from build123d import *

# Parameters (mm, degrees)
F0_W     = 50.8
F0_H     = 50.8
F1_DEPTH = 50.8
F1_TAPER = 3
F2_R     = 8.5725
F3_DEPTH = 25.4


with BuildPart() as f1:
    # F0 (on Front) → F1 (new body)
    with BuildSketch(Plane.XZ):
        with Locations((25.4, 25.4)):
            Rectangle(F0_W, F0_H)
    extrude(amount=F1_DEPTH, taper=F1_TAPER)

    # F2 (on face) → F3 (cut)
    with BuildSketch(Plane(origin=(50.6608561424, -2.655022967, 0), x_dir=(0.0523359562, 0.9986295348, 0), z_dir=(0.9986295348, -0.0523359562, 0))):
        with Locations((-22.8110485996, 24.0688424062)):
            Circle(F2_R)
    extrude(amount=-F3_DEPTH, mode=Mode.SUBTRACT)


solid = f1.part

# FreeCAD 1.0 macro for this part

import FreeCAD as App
import Part
import Sketcher

V = App.Vector
Q = App.Units.Quantity

doc = App.newDocument("Part")
body = doc.addObject("PartDesign::Body", "Body")

# Sketch on XZ plane
sketch1 = body.newObject("Sketcher::SketchObject", "Sketch")
sketch1.AttachmentSupport = (doc.getObject("XZ_Plane"), [""])
sketch1.MapMode = "FlatFace"
sketch1.addGeometry([
    Part.LineSegment(V(0, 51, 0), V(0, 0, 0)),
    Part.LineSegment(V(0, 0, 0), V(51, 0, 0)),
    Part.LineSegment(V(51, 0, 0), V(51, 51, 0)),
    Part.LineSegment(V(51, 51, 0), V(0, 51, 0)),
], False)
sketch1.addConstraint([
    Sketcher.Constraint("Coincident", 0, 2, 1, 1),
    Sketcher.Constraint("Coincident", 1, 2, 2, 1),
    Sketcher.Constraint("Coincident", 2, 2, 3, 1),
    Sketcher.Constraint("Coincident", 3, 2, 0, 1),
    Sketcher.Constraint("Vertical", 0),
    Sketcher.Constraint("Horizontal", 1),
    Sketcher.Constraint("Vertical", 2),
    Sketcher.Constraint("Horizontal", 3),
    Sketcher.Constraint("Coincident", 0, 2, -1, 1),
    Sketcher.Constraint("Equal", 3, 0),
    Sketcher.Constraint("DistanceX", 1, 1, 1, 2, Q("2 in")),
])
pad1 = body.newObject("PartDesign::Pad", "Pad")
pad1.Profile = sketch1
pad1.Length = Q("2 in")
pad1.TaperAngle = -3

# Sketch on an angled plane
sketch2 = body.newObject("Sketcher::SketchObject", "Sketch001")
sketch2.Placement = App.Placement(V(50.660856, -2.655023, 0), App.Rotation(V(0.052335956, 0.998629535, 0), V(0, 0, 1), V(0.998629535, -0.052335956, 0), "ZXY"))
sketch2.addGeometry(Part.Circle(V(-23, 24, 0), V(0, 0, 1), 9), False)
sketch2.addConstraint([
    Sketcher.Constraint("Diameter", 0, Q("0.675 in")),
    Sketcher.Constraint("DistanceX", 0, 3, -1, 1, Q("22.811049 mm")),
    Sketcher.Constraint("DistanceY", -1, 1, 0, 3, Q("24.068842 mm")),
])
pocket1 = body.newObject("PartDesign::Pocket", "Pocket")
pocket1.Profile = sketch2
pocket1.Length = Q("1 in")

doc.recompute()
